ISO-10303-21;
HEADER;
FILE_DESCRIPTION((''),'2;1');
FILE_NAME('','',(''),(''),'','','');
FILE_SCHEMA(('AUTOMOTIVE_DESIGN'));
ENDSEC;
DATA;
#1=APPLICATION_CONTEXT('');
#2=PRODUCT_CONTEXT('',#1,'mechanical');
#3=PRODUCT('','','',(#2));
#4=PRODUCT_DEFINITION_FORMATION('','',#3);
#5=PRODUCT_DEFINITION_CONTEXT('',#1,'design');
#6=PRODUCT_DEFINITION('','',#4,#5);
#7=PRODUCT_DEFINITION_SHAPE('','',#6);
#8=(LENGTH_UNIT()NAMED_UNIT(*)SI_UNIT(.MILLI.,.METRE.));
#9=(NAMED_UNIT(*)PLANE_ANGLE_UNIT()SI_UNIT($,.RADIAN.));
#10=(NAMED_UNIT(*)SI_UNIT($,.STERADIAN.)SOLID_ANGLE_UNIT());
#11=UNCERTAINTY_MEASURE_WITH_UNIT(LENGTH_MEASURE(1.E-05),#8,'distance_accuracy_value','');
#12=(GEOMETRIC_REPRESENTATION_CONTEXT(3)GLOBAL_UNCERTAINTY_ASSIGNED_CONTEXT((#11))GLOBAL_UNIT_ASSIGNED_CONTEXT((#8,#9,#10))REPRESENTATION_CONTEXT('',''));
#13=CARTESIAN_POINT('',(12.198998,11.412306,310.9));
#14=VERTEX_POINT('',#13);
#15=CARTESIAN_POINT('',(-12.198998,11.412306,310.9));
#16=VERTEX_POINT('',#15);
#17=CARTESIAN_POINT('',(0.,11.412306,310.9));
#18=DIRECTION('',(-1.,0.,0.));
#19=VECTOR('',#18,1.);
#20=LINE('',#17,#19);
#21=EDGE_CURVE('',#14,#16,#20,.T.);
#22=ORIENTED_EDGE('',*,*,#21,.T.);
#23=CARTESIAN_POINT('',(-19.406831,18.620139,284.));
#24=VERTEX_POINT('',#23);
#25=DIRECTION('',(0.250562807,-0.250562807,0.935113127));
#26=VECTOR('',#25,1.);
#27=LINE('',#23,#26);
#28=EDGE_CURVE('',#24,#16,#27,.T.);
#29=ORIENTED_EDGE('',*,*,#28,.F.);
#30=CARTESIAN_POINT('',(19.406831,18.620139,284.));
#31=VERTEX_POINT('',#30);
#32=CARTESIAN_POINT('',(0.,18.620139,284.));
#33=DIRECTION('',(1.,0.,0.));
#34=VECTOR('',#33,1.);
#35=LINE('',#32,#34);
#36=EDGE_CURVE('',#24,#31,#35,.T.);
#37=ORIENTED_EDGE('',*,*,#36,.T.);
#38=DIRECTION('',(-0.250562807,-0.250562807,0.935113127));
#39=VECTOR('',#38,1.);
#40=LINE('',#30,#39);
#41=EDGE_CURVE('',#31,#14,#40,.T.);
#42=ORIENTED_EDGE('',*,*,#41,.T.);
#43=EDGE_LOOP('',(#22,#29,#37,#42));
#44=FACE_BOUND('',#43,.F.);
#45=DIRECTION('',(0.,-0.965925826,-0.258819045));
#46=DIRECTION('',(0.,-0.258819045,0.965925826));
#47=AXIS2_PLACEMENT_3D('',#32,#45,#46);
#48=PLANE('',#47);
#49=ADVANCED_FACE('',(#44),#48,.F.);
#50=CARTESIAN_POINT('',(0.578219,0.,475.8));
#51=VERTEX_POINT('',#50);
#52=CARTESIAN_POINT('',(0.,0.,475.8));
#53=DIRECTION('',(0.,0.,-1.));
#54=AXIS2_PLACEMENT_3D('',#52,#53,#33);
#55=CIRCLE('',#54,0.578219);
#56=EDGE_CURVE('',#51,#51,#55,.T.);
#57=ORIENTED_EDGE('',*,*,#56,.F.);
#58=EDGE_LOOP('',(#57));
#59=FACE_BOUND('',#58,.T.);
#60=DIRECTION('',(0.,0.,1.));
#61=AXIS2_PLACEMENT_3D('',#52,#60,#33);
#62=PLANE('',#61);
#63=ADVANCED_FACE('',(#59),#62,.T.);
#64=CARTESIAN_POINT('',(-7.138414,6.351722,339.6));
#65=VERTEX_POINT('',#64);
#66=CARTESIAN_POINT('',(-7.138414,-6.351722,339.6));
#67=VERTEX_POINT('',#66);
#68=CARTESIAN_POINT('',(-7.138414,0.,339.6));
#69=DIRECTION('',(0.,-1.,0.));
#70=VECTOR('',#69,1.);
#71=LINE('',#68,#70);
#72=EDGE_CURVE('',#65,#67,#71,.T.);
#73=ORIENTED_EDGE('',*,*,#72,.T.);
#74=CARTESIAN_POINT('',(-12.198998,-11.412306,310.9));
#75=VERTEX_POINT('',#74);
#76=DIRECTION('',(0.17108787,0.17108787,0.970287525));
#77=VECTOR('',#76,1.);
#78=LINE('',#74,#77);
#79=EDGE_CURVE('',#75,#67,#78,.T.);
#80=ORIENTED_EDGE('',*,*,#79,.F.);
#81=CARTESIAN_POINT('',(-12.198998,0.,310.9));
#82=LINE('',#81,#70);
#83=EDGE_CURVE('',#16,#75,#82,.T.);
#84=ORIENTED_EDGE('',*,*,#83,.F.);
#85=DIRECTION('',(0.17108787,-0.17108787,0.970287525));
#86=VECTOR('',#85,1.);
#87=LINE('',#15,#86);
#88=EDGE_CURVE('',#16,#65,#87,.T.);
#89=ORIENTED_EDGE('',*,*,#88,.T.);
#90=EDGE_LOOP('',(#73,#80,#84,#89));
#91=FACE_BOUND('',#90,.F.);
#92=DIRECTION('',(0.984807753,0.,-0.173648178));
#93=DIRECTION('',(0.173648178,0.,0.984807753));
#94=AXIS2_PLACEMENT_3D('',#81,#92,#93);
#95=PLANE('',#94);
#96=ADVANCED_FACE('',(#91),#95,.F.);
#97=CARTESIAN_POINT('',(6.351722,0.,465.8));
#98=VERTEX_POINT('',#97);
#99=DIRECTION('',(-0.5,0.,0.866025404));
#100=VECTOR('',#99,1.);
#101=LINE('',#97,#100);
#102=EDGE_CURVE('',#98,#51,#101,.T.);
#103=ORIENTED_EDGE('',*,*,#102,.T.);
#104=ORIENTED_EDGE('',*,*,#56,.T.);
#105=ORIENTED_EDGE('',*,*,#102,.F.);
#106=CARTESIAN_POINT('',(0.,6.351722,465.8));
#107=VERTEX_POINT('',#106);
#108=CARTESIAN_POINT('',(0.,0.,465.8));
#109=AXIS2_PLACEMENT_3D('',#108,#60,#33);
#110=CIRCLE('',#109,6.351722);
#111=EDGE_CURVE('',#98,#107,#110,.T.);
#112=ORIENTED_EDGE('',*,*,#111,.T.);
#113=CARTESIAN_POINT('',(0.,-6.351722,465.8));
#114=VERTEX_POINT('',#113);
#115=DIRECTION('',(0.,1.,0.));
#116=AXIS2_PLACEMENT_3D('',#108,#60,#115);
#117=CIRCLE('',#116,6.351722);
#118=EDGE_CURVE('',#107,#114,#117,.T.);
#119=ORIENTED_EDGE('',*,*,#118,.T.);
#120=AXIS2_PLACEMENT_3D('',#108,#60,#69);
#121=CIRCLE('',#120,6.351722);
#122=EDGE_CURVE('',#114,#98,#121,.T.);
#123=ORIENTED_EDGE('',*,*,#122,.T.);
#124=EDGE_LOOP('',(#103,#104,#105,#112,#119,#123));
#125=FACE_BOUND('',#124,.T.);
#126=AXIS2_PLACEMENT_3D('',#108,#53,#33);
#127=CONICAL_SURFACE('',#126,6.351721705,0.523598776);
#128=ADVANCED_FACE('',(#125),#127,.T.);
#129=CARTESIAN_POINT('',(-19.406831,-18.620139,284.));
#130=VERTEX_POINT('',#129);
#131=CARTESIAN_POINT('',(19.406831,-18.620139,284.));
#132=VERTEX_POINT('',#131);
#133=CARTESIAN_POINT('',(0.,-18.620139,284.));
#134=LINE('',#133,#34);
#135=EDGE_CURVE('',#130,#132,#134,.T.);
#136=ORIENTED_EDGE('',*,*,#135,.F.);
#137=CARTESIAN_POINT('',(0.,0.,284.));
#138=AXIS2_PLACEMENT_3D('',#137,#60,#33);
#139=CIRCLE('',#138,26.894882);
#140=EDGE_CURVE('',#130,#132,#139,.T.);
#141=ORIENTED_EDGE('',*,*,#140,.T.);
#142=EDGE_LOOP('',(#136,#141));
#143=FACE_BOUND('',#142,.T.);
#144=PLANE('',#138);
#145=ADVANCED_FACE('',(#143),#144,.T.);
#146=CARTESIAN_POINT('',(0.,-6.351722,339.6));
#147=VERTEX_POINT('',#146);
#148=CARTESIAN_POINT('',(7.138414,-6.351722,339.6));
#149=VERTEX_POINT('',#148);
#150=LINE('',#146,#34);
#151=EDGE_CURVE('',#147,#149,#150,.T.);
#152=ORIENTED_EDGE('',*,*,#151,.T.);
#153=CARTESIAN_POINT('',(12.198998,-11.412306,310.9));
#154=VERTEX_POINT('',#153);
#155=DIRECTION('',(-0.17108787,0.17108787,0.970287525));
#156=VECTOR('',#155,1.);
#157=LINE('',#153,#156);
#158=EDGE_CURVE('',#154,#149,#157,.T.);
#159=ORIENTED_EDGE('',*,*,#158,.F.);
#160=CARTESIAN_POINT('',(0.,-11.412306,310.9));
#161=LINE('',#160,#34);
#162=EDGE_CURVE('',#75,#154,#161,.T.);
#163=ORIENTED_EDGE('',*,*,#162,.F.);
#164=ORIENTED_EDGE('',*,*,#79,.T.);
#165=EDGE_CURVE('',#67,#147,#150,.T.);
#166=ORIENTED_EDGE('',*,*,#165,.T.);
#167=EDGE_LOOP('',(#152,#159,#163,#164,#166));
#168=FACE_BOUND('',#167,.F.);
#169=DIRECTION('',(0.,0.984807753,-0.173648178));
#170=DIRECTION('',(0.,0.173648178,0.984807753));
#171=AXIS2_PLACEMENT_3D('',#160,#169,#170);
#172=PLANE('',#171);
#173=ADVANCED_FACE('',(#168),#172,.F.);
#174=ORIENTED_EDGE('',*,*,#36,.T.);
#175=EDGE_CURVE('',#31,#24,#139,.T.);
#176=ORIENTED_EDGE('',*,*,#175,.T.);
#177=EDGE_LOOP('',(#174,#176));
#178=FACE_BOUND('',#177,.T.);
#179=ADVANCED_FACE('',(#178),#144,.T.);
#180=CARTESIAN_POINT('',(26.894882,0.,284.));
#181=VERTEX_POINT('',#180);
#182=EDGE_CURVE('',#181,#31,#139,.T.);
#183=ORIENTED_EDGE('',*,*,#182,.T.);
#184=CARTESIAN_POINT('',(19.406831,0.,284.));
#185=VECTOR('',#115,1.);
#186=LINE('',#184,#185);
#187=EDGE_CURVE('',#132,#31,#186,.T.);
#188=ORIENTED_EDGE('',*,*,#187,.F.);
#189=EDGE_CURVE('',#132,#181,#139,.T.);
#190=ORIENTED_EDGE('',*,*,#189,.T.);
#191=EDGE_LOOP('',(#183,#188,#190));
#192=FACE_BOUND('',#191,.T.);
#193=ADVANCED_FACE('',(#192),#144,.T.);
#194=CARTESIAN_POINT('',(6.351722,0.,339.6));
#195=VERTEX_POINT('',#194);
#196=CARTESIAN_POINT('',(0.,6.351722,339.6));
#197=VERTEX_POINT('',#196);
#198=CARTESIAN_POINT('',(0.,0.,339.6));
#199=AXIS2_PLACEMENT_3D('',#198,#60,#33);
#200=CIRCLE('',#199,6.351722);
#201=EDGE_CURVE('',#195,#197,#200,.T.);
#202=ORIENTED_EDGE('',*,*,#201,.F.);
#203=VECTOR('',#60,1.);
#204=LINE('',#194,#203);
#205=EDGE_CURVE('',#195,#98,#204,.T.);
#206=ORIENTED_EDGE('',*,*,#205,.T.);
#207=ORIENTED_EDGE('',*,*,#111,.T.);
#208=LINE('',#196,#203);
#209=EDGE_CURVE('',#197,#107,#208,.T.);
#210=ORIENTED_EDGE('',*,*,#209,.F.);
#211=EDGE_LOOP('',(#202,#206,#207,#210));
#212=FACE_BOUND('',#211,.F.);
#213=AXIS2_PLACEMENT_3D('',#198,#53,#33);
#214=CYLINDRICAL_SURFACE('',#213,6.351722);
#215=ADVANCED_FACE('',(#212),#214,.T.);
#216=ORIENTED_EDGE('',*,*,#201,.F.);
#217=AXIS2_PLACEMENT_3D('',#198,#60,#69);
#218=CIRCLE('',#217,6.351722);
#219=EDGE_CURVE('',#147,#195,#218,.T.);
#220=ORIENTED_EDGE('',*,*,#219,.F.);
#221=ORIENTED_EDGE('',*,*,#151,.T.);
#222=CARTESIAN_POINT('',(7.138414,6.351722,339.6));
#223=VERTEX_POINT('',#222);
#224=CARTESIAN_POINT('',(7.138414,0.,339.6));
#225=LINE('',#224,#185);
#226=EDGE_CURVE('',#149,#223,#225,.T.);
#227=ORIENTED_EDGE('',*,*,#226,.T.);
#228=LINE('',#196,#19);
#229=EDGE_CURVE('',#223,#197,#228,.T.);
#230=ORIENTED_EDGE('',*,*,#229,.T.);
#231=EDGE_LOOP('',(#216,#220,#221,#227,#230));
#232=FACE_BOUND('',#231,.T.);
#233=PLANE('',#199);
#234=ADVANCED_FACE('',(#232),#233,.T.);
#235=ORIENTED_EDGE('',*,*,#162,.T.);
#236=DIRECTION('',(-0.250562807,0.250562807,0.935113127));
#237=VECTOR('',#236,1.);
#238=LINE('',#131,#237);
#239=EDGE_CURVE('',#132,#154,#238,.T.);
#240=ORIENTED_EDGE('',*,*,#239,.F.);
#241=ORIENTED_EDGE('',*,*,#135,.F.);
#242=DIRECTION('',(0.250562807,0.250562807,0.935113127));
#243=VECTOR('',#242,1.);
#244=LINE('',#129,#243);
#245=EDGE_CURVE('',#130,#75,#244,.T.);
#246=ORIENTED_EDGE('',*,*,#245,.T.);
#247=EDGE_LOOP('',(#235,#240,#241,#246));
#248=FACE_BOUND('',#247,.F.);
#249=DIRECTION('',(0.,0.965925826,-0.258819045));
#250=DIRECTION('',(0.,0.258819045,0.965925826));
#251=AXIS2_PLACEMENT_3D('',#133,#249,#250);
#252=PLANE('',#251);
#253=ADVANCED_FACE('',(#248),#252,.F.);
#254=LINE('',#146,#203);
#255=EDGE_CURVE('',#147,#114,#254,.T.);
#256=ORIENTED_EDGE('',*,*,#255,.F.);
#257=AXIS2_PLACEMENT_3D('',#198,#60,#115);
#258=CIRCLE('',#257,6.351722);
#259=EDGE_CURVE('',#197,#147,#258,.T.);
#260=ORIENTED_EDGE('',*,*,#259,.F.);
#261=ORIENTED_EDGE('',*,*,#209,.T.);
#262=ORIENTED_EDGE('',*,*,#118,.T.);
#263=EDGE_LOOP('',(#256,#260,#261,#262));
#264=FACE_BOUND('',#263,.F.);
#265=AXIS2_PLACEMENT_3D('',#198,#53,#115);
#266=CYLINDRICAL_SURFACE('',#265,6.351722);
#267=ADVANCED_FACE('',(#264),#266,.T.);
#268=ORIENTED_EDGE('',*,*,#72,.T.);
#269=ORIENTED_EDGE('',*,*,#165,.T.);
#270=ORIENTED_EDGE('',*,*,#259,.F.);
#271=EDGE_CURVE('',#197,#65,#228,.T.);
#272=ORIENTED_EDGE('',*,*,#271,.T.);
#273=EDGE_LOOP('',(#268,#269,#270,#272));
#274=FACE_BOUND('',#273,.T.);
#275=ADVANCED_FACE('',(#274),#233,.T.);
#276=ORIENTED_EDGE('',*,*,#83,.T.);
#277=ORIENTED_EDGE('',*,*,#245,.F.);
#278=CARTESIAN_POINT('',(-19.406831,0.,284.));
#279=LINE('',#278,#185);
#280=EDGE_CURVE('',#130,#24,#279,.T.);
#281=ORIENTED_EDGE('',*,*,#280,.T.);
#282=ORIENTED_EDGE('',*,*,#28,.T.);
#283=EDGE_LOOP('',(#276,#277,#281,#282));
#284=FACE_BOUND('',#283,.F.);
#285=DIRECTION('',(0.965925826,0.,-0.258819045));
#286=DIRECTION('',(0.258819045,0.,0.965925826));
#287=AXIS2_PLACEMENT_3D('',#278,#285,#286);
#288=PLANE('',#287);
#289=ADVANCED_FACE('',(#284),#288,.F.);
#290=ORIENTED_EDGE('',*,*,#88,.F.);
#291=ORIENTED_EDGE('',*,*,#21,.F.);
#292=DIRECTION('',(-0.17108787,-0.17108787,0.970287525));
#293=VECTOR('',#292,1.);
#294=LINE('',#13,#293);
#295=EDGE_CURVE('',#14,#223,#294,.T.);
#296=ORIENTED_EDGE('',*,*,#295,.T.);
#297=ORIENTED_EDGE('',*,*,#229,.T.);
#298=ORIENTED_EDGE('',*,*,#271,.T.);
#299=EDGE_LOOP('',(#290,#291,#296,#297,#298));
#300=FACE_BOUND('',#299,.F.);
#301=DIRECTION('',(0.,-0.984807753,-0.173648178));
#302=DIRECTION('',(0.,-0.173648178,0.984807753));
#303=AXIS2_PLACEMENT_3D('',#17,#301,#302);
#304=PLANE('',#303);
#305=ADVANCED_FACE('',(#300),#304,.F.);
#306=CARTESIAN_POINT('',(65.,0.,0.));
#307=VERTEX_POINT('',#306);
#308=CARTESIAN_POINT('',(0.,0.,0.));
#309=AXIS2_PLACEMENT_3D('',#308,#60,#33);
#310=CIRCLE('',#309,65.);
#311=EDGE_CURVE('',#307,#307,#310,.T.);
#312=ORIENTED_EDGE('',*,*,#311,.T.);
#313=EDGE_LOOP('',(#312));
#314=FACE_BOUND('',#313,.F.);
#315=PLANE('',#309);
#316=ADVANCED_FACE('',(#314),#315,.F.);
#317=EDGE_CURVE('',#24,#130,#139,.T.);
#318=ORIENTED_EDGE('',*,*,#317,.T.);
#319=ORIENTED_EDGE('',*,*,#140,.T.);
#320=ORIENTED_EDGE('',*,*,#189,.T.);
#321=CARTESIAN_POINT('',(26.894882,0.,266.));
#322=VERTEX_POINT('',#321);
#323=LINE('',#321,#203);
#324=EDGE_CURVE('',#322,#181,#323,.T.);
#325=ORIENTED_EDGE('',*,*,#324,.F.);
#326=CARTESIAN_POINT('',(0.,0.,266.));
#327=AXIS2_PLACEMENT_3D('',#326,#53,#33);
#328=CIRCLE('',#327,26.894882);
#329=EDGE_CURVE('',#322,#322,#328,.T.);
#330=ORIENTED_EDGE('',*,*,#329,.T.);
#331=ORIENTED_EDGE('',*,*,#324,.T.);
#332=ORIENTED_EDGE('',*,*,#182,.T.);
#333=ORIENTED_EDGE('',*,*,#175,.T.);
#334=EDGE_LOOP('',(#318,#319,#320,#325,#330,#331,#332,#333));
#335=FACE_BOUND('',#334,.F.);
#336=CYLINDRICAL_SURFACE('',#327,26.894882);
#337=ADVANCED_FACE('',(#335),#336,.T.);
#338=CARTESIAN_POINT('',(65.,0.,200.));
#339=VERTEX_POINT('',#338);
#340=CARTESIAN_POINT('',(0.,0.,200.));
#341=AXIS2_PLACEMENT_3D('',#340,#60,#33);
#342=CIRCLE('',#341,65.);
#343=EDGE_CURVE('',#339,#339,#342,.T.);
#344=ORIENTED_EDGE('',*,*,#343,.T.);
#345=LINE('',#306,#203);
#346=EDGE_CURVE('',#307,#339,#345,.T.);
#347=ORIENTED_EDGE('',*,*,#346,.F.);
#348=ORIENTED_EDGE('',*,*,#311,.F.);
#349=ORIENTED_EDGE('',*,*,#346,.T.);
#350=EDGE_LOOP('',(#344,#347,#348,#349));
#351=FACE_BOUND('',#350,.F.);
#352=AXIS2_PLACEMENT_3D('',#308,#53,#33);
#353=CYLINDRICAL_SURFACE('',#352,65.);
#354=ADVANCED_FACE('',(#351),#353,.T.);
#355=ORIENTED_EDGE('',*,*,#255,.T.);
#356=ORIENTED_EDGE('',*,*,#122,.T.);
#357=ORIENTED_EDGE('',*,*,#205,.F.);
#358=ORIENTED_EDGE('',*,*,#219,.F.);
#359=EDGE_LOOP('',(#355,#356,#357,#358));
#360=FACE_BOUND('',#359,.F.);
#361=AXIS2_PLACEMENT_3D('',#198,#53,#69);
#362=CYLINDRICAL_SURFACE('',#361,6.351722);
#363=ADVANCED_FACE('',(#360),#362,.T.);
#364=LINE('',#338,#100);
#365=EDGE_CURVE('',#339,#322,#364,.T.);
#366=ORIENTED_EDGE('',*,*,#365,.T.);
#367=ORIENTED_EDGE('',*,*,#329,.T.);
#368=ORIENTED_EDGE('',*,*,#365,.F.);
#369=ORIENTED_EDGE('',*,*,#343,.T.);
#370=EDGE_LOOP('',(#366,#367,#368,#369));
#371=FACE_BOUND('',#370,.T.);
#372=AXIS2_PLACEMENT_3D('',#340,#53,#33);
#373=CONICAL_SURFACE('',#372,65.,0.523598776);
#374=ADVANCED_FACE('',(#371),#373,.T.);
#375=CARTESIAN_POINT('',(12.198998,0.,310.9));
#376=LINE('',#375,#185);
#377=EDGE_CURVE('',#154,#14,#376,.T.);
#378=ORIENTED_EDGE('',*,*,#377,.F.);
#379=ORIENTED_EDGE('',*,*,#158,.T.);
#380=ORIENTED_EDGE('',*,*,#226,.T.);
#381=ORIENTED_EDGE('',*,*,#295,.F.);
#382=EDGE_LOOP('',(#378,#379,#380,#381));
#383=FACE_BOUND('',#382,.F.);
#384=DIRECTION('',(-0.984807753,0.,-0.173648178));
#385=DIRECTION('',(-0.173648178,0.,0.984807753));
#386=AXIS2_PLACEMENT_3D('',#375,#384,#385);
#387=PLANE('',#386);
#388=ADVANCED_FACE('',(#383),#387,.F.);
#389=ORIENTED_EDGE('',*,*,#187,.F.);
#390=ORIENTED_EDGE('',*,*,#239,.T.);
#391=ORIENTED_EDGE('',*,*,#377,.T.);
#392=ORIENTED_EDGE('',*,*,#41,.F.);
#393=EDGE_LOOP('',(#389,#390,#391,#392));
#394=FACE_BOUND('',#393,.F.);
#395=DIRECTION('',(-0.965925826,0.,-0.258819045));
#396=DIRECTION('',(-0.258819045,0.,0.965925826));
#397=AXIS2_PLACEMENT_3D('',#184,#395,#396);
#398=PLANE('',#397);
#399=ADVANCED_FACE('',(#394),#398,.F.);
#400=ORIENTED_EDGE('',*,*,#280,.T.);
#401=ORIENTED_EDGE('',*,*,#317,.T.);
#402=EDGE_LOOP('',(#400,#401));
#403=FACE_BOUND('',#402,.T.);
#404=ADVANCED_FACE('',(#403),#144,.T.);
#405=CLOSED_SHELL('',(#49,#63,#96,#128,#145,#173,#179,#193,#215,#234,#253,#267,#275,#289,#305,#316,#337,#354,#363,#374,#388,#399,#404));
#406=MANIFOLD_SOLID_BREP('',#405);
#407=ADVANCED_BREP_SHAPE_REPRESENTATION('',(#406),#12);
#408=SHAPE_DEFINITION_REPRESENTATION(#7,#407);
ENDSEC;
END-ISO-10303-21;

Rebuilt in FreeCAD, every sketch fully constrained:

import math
import FreeCAD as App
import Part
import Sketcher
Q = App.Units.Quantity


def add_polygon(sketch, points):
    """Adds a closed chain of lines whose ends are joined by coincident constraints."""
    first, n = sketch.GeometryCount, len(points)
    for a, b in zip(points, points[1:] + points[:1]):
        sketch.addGeometry(Part.LineSegment(App.Vector(*a, 0), App.Vector(*b, 0)), False)
    for i in range(n):
        sketch.addConstraint(Sketcher.Constraint("Coincident", first + i, 2, first + (i + 1) % n, 1))

doc = App.newDocument("Part")
body = doc.addObject("PartDesign::Body", "Body")

sketch1 = body.newObject("Sketcher::SketchObject", "Sketch")
sketch1.AttachmentSupport = (doc.getObject("XY_Plane"), [""])
sketch1.MapMode = "FlatFace"
sketch1.addGeometry(Part.Circle(App.Vector(0, 0, 0), App.Vector(0, 0, 1), 65), False)
sketch1.addConstraint([
    Sketcher.Constraint("Coincident", 0, 3, -1, 1),
    Sketcher.Constraint("Diameter", 0, Q("130 mm")),
])
pad1 = body.newObject("PartDesign::Pad", "Pad")
pad1.Profile = sketch1
pad1.Length = 200

sketch2 = body.newObject("Sketcher::SketchObject", "Sketch001")
sketch2.AttachmentSupport = (doc.getObject("XY_Plane"), [""])
sketch2.MapMode = "FlatFace"
sketch2.AttachmentOffset = App.Placement(App.Vector(0, 0, 200), App.Rotation())
sketch2.addGeometry(Part.Circle(App.Vector(0, 0, 0), App.Vector(0, 0, 1), 65), False)
sketch2.addConstraint([
    Sketcher.Constraint("Coincident", 0, 3, -1, 1),
    Sketcher.Constraint("Diameter", 0, Q("130 mm")),
])
pad2 = body.newObject("PartDesign::Pad", "Pad001")
pad2.Profile = sketch2
pad2.Length = 66
pad2.TaperAngle = -30

sketch3 = body.newObject("Sketcher::SketchObject", "Sketch002")
sketch3.AttachmentSupport = (doc.getObject("XY_Plane"), [""])
sketch3.MapMode = "FlatFace"
sketch3.AttachmentOffset = App.Placement(App.Vector(0, 0, 266), App.Rotation())
sketch3.addGeometry(Part.Circle(App.Vector(0, 0, 0), App.Vector(0, 0, 1), 27), False)
sketch3.addConstraint([
    Sketcher.Constraint("Coincident", 0, 3, -1, 1),
    Sketcher.Constraint("Diameter", 0, Q("53.789764 mm")),
])
pad3 = body.newObject("PartDesign::Pad", "Pad002")
pad3.Profile = sketch3
pad3.Length = 18

sketch4 = body.newObject("Sketcher::SketchObject", "Sketch003")
sketch4.AttachmentSupport = (doc.getObject("XY_Plane"), [""])
sketch4.MapMode = "FlatFace"
sketch4.AttachmentOffset = App.Placement(App.Vector(0, 0, 284), App.Rotation())
add_polygon(sketch4, [(-19, 19), (-19, -19), (19, -19), (19, 19)])
sketch4.addConstraint([
    Sketcher.Constraint("Vertical", 0),
    Sketcher.Constraint("Horizontal", 1),
    Sketcher.Constraint("Vertical", 2),
    Sketcher.Constraint("Horizontal", 3),
    Sketcher.Constraint("Symmetric", 0, 2, 2, 2, -1, 1),
    Sketcher.Constraint("DistanceY", 0, 2, 0, 1, Q("37.240279 mm")),
    Sketcher.Constraint("DistanceX", 1, 1, 1, 2, Q("38.813663 mm")),
])
pad4 = body.newObject("PartDesign::Pad", "Pad003")
pad4.Profile = sketch4
pad4.Length = 26.9
pad4.TaperAngle = -15

sketch5 = body.newObject("Sketcher::SketchObject", "Sketch004")
sketch5.AttachmentSupport = (doc.getObject("XY_Plane"), [""])
sketch5.MapMode = "FlatFace"
sketch5.AttachmentOffset = App.Placement(App.Vector(0, 0, 310.9), App.Rotation())
add_polygon(sketch5, [(-12, 11), (-12, -11), (12, -11), (12, 11)])
sketch5.addConstraint([
    Sketcher.Constraint("Vertical", 0),
    Sketcher.Constraint("Horizontal", 1),
    Sketcher.Constraint("Vertical", 2),
    Sketcher.Constraint("Horizontal", 3),
    Sketcher.Constraint("Symmetric", 0, 2, 2, 2, -1, 1),
    Sketcher.Constraint("DistanceX", 0, 2, -1, 1, Q("12.198998 mm")),
    Sketcher.Constraint("DistanceY", 0, 2, 0, 1, Q("22.824612 mm")),
])
pad5 = body.newObject("PartDesign::Pad", "Pad004")
pad5.Profile = sketch5
pad5.Length = 28.7
pad5.TaperAngle = -10

sketch6 = body.newObject("Sketcher::SketchObject", "Sketch005")
sketch6.AttachmentSupport = (doc.getObject("XY_Plane"), [""])
sketch6.MapMode = "FlatFace"
sketch6.AttachmentOffset = App.Placement(App.Vector(0, 0, 339.6), App.Rotation())
sketch6.addGeometry([
    Part.ArcOfCircle(Part.Circle(App.Vector(0, 0, 0), App.Vector(0, 0, 1), 6), math.radians(-90), math.radians(0)),
    Part.ArcOfCircle(Part.Circle(App.Vector(0, 0, 0), App.Vector(0, 0, 1), 6), math.radians(0), math.radians(90)),
    Part.ArcOfCircle(Part.Circle(App.Vector(0, 0, 0), App.Vector(0, 0, 1), 6), math.radians(90), math.radians(270)),
], False)
sketch6.addConstraint([
    Sketcher.Constraint("Tangent", 0, 2, 1, 1),
    Sketcher.Constraint("Tangent", 1, 2, 2, 1),
    Sketcher.Constraint("Tangent", 2, 2, 0, 1),
    Sketcher.Constraint("Coincident", 0, 3, -1, 1),
    Sketcher.Constraint("PointOnObject", 0, 2, -1),
    Sketcher.Constraint("PointOnObject", 1, 2, -2),
    Sketcher.Constraint("PointOnObject", 2, 2, -2),
    Sketcher.Constraint("Radius", 0, Q("6.351722 mm")),
])
pad6 = body.newObject("PartDesign::Pad", "Pad005")
pad6.Profile = sketch6
pad6.Length = 126.2

sketch7 = body.newObject("Sketcher::SketchObject", "Sketch006")
sketch7.AttachmentSupport = (doc.getObject("XY_Plane"), [""])
sketch7.MapMode = "FlatFace"
sketch7.AttachmentOffset = App.Placement(App.Vector(0, 0, 465.8), App.Rotation())
sketch7.addGeometry(Part.Circle(App.Vector(0, 0, 0), App.Vector(0, 0, 1), 6), False)
sketch7.addConstraint([
    Sketcher.Constraint("Coincident", 0, 3, -1, 1),
    Sketcher.Constraint("Diameter", 0, Q("12.703443 mm")),
])
pad7 = body.newObject("PartDesign::Pad", "Pad006")
pad7.Profile = sketch7
pad7.Length = 10
pad7.TaperAngle = -30

doc.recompute()
